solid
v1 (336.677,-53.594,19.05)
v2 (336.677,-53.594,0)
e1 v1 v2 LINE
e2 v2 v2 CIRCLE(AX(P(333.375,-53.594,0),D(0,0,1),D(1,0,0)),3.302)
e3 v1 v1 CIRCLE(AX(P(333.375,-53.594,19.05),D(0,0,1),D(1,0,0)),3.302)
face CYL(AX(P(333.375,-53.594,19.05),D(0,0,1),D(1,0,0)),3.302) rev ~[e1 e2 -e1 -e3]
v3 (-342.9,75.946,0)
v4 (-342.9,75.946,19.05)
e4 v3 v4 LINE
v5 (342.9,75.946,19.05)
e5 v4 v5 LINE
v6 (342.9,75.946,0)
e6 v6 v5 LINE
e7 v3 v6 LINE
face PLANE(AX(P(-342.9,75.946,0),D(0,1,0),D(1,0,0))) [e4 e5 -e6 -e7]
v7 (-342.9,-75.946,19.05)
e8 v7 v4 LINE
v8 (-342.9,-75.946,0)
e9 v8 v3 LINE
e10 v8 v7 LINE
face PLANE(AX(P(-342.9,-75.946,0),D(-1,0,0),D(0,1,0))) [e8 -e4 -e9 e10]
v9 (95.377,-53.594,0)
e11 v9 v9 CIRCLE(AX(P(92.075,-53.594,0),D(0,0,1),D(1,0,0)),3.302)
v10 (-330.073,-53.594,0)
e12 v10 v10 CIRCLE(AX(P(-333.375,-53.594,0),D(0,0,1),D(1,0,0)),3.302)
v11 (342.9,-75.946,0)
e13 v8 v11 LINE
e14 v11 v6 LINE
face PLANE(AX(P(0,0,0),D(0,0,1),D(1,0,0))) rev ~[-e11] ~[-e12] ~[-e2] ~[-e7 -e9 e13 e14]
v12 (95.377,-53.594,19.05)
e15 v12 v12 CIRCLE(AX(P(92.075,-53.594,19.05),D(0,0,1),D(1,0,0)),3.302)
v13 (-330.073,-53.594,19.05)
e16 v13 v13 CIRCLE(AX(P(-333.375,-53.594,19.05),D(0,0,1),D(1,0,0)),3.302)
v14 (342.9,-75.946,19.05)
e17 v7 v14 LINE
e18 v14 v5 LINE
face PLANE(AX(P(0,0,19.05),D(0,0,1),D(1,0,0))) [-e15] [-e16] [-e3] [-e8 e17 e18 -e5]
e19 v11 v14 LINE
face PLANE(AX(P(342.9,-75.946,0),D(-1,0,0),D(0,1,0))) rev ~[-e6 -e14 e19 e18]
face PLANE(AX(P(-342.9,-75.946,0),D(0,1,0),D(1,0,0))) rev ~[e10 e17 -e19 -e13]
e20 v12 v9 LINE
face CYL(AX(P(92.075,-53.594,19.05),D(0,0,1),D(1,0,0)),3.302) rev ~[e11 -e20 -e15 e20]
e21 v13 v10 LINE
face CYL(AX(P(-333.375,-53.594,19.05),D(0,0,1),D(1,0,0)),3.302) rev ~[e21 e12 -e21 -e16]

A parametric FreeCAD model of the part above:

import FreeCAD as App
import Part
import Sketcher
from FreeCAD import Vector
Q = App.Units.Quantity


def add_polygon(sketch, points):
    """Adds a closed chain of lines whose ends are joined by coincident constraints."""
    first, n = sketch.GeometryCount, len(points)
    for a, b in zip(points, points[1:] + points[:1]):
        sketch.addGeometry(Part.LineSegment(App.Vector(*a, 0), App.Vector(*b, 0)), False)
    for i in range(n):
        sketch.addConstraint(Sketcher.Constraint("Coincident", first + i, 2, first + (i + 1) % n, 1))

doc = App.newDocument("Part")
body = doc.addObject("PartDesign::Body", "Body")

sketch1 = body.newObject("Sketcher::SketchObject", "Sketch")
sketch1.AttachmentSupport = (doc.getObject("XY_Plane"), [""])
sketch1.MapMode = "FlatFace"
add_polygon(sketch1, [(-343, 76), (-343, -76), (343, -76), (343, 76)])
sketch1.addConstraint([
    Sketcher.Constraint("Vertical", 0),
    Sketcher.Constraint("Horizontal", 1),
    Sketcher.Constraint("Vertical", 2),
    Sketcher.Constraint("Horizontal", 3),
    Sketcher.Constraint("Symmetric", 0, 2, 2, 2, -1, 1),
    Sketcher.Constraint("DistanceX", 1, 1, 1, 2, Q("27 in")),
    Sketcher.Constraint("DistanceY", 0, 2, 0, 1, Q("5.98 in")),
])
pad1 = body.newObject("PartDesign::Pad", "Pad")
pad1.Profile = sketch1
pad1.Length = Q("0.75 in")

sketch2 = body.newObject("Sketcher::SketchObject", "Sketch001")
sketch2.AttachmentSupport = (doc.getObject("XY_Plane"), [""])
sketch2.MapMode = "FlatFace"
sketch2.AttachmentOffset = App.Placement(Vector(0, 0, 0.75 * 25.4), App.Rotation())
sketch2.addGeometry([
    Part.Circle(Vector(-333.4, -53.6, 0), Vector(0, 0, 1), 3.3),
    Part.Circle(Vector(92.1, -53.6, 0), Vector(0, 0, 1), 3.3),
    Part.Circle(Vector(333.4, -53.6, 0), Vector(0, 0, 1), 3.3),
], False)
sketch2.addConstraint([
    Sketcher.Constraint("Equal", 0, 1),
    Sketcher.Constraint("Equal", 1, 2),
    Sketcher.Constraint("Symmetric", 0, 3, 2, 3, -2),
    Sketcher.Constraint("Horizontal", 0, 3, 1, 3),
    Sketcher.Constraint("Diameter", 0, Q("0.26 in")),
    Sketcher.Constraint("DistanceX", 1, 3, 2, 3, Q("9.5 in")),
    Sketcher.Constraint("DistanceY", 0, 3, -1, 1, Q("2.11 in")),
    Sketcher.Constraint("DistanceX", 0, 3, 1, 3, Q("16.75 in")),
])
pocket1 = body.newObject("PartDesign::Pocket", "Pocket")
pocket1.Profile = sketch2
pocket1.Length = Q("0.75 in")

doc.recompute()
